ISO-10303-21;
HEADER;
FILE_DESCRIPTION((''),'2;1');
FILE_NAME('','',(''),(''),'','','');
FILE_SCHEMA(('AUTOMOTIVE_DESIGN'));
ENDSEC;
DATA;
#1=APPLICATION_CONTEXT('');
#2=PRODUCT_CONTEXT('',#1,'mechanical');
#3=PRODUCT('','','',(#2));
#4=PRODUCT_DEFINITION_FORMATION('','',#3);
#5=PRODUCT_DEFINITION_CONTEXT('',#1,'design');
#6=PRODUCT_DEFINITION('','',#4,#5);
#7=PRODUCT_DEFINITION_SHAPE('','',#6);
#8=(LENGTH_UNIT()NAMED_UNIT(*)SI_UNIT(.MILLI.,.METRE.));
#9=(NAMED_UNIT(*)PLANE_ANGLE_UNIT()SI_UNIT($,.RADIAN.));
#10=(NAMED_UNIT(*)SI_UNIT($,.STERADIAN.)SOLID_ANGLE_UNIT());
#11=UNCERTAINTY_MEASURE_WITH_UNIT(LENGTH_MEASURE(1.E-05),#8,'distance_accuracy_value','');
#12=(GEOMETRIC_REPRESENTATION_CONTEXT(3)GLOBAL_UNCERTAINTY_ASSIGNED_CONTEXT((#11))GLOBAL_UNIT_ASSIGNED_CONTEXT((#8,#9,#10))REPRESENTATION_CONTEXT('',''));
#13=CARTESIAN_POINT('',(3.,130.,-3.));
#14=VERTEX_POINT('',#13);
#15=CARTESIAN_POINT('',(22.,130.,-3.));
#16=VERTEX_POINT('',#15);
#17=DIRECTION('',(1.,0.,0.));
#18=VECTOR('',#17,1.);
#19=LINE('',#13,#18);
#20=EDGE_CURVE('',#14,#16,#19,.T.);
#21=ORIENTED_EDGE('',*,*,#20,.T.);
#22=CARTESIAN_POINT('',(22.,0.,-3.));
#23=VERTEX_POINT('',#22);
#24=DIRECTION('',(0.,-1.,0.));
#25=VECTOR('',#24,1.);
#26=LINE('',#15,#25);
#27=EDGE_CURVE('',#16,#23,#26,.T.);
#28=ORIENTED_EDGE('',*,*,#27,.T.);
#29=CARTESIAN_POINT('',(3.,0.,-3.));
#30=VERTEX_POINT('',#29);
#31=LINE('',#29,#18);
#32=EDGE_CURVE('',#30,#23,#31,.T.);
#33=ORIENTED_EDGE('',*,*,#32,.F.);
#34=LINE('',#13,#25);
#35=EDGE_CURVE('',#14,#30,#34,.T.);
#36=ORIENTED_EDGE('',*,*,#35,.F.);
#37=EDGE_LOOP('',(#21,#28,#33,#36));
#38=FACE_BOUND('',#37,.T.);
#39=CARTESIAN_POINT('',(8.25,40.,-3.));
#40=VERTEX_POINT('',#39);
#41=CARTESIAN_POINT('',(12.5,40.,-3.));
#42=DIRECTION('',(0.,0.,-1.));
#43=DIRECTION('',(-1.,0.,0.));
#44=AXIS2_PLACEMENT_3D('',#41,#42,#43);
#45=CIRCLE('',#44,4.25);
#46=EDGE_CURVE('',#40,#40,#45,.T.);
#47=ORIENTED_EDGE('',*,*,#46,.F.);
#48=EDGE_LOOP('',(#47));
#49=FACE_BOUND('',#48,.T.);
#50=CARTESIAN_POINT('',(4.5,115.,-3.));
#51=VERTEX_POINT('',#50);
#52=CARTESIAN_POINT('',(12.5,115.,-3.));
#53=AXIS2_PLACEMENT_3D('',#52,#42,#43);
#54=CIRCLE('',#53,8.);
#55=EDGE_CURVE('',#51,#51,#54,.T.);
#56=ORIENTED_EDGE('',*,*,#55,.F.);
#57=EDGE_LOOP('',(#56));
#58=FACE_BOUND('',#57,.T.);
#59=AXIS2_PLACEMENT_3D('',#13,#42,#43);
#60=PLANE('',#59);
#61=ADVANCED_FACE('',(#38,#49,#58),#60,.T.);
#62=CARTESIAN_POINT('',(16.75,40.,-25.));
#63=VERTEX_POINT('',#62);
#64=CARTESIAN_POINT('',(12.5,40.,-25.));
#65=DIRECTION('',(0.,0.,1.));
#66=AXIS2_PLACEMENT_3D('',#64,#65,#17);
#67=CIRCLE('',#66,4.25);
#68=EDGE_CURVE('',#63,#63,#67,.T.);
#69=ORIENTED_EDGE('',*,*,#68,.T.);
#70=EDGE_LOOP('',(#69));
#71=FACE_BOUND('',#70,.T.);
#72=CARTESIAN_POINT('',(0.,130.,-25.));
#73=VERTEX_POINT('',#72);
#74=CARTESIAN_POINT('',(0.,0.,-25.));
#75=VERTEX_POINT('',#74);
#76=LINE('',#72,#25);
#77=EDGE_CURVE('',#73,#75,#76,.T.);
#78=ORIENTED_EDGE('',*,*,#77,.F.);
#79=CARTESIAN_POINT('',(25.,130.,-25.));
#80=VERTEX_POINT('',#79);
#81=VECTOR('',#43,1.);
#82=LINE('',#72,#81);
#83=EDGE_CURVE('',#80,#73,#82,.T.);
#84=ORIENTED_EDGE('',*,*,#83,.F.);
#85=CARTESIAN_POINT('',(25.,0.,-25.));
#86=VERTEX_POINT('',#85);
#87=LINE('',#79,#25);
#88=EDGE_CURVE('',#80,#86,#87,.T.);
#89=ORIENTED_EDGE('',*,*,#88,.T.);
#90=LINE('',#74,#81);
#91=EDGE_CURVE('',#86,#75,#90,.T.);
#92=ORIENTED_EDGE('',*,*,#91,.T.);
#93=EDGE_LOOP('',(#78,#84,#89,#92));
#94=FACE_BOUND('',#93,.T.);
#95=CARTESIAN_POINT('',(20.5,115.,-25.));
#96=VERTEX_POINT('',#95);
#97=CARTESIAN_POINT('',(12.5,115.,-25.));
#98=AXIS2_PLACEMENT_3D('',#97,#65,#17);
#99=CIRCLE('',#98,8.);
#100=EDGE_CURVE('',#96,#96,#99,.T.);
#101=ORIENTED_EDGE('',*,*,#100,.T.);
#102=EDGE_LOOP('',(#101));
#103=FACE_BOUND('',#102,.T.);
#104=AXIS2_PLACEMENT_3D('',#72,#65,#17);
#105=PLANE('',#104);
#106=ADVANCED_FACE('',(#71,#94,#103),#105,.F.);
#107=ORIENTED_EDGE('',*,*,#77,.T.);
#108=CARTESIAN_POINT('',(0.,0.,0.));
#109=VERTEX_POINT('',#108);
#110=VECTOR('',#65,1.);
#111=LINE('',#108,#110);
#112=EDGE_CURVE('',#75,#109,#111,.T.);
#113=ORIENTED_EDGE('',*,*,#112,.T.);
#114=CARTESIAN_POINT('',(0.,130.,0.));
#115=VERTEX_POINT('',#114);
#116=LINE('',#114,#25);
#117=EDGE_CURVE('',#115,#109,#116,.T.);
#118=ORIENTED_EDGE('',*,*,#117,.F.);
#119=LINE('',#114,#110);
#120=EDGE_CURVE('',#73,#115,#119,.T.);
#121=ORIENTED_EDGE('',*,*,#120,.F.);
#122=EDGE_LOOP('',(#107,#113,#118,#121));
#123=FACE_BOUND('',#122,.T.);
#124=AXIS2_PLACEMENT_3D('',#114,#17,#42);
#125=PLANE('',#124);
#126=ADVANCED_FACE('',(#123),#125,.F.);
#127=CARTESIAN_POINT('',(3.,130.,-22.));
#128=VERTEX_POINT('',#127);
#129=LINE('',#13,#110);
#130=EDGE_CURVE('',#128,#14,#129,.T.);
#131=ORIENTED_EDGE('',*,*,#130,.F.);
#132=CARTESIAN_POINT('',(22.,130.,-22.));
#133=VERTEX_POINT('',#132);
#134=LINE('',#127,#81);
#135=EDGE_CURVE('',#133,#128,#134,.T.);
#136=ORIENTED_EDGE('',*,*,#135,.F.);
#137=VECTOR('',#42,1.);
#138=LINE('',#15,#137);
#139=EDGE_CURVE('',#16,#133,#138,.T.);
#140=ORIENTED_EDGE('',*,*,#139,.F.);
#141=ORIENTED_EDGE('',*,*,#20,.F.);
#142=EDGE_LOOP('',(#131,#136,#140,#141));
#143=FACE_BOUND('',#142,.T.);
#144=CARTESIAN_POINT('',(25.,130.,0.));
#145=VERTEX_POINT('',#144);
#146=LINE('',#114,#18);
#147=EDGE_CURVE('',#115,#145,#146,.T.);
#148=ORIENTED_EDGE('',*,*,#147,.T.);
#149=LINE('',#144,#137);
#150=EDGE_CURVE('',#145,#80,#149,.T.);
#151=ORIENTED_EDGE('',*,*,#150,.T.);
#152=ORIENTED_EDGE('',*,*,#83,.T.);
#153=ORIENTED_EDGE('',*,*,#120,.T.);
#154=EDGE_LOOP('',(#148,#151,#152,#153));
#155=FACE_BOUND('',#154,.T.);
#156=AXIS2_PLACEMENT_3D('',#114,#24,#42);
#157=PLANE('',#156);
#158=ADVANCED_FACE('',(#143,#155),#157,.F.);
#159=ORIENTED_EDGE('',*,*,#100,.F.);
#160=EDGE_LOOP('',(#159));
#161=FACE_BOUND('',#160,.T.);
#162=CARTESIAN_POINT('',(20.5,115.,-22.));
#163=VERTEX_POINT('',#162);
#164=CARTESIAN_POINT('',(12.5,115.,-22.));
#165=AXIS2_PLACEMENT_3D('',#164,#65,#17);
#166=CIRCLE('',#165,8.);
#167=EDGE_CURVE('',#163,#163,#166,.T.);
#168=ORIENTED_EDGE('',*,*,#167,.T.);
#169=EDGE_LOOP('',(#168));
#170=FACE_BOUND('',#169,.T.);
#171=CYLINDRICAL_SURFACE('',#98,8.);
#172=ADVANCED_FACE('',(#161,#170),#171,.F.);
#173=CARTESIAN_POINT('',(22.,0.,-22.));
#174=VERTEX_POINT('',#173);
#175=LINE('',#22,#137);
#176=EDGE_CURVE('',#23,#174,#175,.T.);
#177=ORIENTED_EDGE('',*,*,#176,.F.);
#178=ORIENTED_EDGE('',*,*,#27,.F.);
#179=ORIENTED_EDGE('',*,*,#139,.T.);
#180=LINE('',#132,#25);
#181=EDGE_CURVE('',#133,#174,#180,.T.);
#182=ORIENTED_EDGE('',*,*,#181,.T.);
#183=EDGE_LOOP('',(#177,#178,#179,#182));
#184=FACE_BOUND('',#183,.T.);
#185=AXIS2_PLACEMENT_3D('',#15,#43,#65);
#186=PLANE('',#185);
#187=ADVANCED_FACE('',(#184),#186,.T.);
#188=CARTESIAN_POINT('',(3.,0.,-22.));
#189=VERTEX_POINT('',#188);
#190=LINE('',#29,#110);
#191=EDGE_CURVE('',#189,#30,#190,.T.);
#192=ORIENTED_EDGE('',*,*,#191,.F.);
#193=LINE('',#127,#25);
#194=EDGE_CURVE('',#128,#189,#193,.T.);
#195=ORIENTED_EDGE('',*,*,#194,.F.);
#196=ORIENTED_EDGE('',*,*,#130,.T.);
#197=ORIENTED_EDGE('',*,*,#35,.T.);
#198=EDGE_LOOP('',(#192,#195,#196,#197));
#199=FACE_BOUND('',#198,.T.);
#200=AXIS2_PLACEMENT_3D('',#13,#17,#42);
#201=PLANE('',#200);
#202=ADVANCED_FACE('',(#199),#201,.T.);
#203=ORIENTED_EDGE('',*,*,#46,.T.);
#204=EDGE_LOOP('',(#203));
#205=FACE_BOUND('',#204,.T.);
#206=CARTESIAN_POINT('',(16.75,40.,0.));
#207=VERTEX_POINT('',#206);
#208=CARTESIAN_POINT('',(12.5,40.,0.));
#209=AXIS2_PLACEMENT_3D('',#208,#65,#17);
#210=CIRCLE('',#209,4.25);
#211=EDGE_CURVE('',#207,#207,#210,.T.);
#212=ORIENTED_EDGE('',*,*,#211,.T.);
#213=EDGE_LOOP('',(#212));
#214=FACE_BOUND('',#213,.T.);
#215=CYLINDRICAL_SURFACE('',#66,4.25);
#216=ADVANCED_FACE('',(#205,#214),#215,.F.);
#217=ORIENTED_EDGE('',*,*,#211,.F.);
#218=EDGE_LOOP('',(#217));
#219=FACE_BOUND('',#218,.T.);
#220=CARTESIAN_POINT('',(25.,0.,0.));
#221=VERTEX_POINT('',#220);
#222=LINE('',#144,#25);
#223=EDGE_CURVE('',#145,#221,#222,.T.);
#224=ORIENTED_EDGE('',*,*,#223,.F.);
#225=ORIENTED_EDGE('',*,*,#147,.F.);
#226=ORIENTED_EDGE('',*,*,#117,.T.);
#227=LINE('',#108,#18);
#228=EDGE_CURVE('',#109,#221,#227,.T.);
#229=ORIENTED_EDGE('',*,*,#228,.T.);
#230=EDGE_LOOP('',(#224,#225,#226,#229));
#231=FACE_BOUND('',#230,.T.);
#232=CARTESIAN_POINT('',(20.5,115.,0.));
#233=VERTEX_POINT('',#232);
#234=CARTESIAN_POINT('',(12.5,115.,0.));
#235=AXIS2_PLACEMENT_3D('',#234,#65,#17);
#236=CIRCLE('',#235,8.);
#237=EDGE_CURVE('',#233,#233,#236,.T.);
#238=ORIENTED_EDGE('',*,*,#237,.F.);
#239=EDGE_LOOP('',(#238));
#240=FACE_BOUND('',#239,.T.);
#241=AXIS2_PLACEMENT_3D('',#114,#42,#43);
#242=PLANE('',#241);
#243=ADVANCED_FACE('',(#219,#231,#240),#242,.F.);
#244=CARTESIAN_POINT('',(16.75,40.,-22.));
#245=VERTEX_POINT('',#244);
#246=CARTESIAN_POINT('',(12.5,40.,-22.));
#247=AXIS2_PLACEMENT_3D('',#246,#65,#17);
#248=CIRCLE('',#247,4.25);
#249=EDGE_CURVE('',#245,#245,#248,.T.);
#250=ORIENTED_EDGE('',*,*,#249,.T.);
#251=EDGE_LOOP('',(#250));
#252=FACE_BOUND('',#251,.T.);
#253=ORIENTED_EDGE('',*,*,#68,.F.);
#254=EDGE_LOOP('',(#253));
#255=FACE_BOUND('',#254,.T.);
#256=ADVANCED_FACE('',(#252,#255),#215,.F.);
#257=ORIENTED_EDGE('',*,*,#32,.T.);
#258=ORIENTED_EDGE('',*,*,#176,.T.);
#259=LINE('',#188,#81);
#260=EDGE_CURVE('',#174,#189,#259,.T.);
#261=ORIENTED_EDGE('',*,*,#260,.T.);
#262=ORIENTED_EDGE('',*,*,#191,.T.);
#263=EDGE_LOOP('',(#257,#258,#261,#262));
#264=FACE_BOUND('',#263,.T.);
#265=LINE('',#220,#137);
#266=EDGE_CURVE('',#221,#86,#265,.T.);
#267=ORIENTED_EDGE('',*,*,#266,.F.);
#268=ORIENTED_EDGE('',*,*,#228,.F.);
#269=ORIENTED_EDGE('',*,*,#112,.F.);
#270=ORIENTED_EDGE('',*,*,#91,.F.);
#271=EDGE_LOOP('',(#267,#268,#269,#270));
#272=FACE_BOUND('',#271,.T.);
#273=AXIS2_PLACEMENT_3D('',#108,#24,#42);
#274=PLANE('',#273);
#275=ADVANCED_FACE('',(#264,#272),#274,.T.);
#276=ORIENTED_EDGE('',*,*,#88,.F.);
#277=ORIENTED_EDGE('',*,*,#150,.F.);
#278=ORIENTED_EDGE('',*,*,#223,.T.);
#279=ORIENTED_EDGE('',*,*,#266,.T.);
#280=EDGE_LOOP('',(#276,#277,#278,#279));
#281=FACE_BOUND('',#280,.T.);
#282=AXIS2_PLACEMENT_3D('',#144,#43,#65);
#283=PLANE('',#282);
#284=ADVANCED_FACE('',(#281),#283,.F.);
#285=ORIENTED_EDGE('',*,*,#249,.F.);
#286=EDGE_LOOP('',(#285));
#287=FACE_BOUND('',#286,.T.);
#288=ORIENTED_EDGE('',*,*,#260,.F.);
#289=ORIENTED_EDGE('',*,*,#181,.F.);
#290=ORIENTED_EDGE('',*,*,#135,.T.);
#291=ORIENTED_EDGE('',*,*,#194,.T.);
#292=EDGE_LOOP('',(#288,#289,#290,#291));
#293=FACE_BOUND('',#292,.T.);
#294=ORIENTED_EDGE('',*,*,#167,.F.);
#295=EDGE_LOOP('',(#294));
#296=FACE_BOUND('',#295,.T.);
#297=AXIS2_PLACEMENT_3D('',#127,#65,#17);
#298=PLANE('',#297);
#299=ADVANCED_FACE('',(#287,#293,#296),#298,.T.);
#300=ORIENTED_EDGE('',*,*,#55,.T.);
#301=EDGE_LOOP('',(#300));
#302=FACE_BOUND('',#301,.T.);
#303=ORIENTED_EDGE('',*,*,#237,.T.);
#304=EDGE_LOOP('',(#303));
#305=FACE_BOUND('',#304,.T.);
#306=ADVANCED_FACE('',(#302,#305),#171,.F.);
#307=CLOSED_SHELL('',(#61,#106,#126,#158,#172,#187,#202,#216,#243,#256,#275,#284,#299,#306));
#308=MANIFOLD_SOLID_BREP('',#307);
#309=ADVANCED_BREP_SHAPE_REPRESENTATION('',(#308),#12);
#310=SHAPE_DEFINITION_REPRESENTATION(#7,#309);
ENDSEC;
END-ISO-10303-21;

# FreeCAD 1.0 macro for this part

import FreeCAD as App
import Part
import Sketcher
from FreeCAD import Vector
Q = App.Units.Quantity

doc = App.newDocument("Part")
params = doc.addObject("Spreadsheet::Sheet", "Params")
for row, (alias, value) in enumerate([
    ("sketch1_width", "25 mm"),
    ("sketch1_width2", "19 mm"),
    ("pad1_length", "130 mm"),
    ("sketch2_diameter", "16 mm"),
    ("sketch2_diameter2", "8.5 mm"),
], start=1):
    params.set(f"A{row}", alias)
    params.set(f"B{row}", "=" + value)
    params.setAlias(f"B{row}", alias)

body = doc.addObject("PartDesign::Body", "Body")

sketch1 = body.newObject("Sketcher::SketchObject", "Sketch")
sketch1.AttachmentSupport = (doc.getObject("XZ_Plane"), [""])
sketch1.MapMode = "FlatFace"
sketch1.addGeometry(Part.LineSegment(Vector(0, -25, 0), Vector(0, 0, 0)), False)
sketch1.addGeometry(Part.LineSegment(Vector(0, 0, 0), Vector(25, 0, 0)), False)
sketch1.addGeometry(Part.LineSegment(Vector(25, 0, 0), Vector(25, -25, 0)), False)
sketch1.addGeometry(Part.LineSegment(Vector(25, -25, 0), Vector(0, -25, 0)), False)
sketch1.addGeometry(Part.LineSegment(Vector(22, -3, 0), Vector(3, -3, 0)), False)
sketch1.addGeometry(Part.LineSegment(Vector(3, -3, 0), Vector(3, -22, 0)), False)
sketch1.addGeometry(Part.LineSegment(Vector(3, -22, 0), Vector(22, -22, 0)), False)
sketch1.addGeometry(Part.LineSegment(Vector(22, -22, 0), Vector(22, -3, 0)), False)
sketch1.addConstraint(Sketcher.Constraint("Coincident", 0, 2, 1, 1))
sketch1.addConstraint(Sketcher.Constraint("Coincident", 1, 2, 2, 1))
sketch1.addConstraint(Sketcher.Constraint("Coincident", 2, 2, 3, 1))
sketch1.addConstraint(Sketcher.Constraint("Coincident", 3, 2, 0, 1))
sketch1.addConstraint(Sketcher.Constraint("Coincident", 4, 2, 5, 1))
sketch1.addConstraint(Sketcher.Constraint("Coincident", 5, 2, 6, 1))
sketch1.addConstraint(Sketcher.Constraint("Coincident", 6, 2, 7, 1))
sketch1.addConstraint(Sketcher.Constraint("Coincident", 7, 2, 4, 1))
sketch1.addConstraint(Sketcher.Constraint("Vertical", 0))
sketch1.addConstraint(Sketcher.Constraint("Horizontal", 1))
sketch1.addConstraint(Sketcher.Constraint("Vertical", 2))
sketch1.addConstraint(Sketcher.Constraint("Horizontal", 3))
sketch1.addConstraint(Sketcher.Constraint("Horizontal", 4))
sketch1.addConstraint(Sketcher.Constraint("Vertical", 5))
sketch1.addConstraint(Sketcher.Constraint("Horizontal", 6))
sketch1.addConstraint(Sketcher.Constraint("Vertical", 7))
sketch1.addConstraint(Sketcher.Constraint("Coincident", 0, 2, -1, 1))
sketch1.addConstraint(Sketcher.Constraint("Equal", 3, 0))
sketch1.addConstraint(Sketcher.Constraint("Equal", 6, 5))
sketch1.addConstraint(Sketcher.Constraint("DistanceX", 1, 1, 1, 2, Q("25 mm")))
sketch1.addConstraint(Sketcher.Constraint("DistanceX", 4, 2, 4, 1, Q("19 mm")))
sketch1.addConstraint(Sketcher.Constraint("DistanceX", -1, 1, 4, 2, Q("3 mm")))
sketch1.addConstraint(Sketcher.Constraint("DistanceY", 4, 2, -1, 1, Q("3 mm")))
sketch1.setExpression("Constraints[19]", "Params.sketch1_width")
sketch1.setExpression("Constraints[20]", "Params.sketch1_width2")
pad1 = body.newObject("PartDesign::Pad", "Pad")
pad1.Profile = sketch1
pad1.setExpression("Length", "Params.pad1_length")
pad1.Reversed = True

sketch2 = body.newObject("Sketcher::SketchObject", "Sketch001")
sketch2.AttachmentSupport = (doc.getObject("XY_Plane"), [""])
sketch2.MapMode = "FlatFace"
sketch2.addGeometry(Part.Circle(Vector(12.5, 40, 0), Vector(0, 0, 1), 4.2), False)
sketch2.addGeometry(Part.Circle(Vector(12.5, 115, 0), Vector(0, 0, 1), 8), False)
sketch2.addConstraint(Sketcher.Constraint("Vertical", 0, 3, 1, 3))
sketch2.addConstraint(Sketcher.Constraint("Diameter", 1, Q("16 mm")))
sketch2.addConstraint(Sketcher.Constraint("Diameter", 0, Q("8.5 mm")))
sketch2.addConstraint(Sketcher.Constraint("DistanceY", -1, 1, 0, 3, Q("40 mm")))
sketch2.addConstraint(Sketcher.Constraint("DistanceY", -1, 1, 1, 3, Q("115 mm")))
sketch2.addConstraint(Sketcher.Constraint("DistanceX", -1, 1, 0, 3, Q("12.5 mm")))
sketch2.setExpression("Constraints[1]", "Params.sketch2_diameter")
sketch2.setExpression("Constraints[2]", "Params.sketch2_diameter2")
pocket1 = body.newObject("PartDesign::Pocket", "Pocket")
pocket1.Profile = sketch2
pocket1.Type = "ThroughAll"

doc.recompute()
